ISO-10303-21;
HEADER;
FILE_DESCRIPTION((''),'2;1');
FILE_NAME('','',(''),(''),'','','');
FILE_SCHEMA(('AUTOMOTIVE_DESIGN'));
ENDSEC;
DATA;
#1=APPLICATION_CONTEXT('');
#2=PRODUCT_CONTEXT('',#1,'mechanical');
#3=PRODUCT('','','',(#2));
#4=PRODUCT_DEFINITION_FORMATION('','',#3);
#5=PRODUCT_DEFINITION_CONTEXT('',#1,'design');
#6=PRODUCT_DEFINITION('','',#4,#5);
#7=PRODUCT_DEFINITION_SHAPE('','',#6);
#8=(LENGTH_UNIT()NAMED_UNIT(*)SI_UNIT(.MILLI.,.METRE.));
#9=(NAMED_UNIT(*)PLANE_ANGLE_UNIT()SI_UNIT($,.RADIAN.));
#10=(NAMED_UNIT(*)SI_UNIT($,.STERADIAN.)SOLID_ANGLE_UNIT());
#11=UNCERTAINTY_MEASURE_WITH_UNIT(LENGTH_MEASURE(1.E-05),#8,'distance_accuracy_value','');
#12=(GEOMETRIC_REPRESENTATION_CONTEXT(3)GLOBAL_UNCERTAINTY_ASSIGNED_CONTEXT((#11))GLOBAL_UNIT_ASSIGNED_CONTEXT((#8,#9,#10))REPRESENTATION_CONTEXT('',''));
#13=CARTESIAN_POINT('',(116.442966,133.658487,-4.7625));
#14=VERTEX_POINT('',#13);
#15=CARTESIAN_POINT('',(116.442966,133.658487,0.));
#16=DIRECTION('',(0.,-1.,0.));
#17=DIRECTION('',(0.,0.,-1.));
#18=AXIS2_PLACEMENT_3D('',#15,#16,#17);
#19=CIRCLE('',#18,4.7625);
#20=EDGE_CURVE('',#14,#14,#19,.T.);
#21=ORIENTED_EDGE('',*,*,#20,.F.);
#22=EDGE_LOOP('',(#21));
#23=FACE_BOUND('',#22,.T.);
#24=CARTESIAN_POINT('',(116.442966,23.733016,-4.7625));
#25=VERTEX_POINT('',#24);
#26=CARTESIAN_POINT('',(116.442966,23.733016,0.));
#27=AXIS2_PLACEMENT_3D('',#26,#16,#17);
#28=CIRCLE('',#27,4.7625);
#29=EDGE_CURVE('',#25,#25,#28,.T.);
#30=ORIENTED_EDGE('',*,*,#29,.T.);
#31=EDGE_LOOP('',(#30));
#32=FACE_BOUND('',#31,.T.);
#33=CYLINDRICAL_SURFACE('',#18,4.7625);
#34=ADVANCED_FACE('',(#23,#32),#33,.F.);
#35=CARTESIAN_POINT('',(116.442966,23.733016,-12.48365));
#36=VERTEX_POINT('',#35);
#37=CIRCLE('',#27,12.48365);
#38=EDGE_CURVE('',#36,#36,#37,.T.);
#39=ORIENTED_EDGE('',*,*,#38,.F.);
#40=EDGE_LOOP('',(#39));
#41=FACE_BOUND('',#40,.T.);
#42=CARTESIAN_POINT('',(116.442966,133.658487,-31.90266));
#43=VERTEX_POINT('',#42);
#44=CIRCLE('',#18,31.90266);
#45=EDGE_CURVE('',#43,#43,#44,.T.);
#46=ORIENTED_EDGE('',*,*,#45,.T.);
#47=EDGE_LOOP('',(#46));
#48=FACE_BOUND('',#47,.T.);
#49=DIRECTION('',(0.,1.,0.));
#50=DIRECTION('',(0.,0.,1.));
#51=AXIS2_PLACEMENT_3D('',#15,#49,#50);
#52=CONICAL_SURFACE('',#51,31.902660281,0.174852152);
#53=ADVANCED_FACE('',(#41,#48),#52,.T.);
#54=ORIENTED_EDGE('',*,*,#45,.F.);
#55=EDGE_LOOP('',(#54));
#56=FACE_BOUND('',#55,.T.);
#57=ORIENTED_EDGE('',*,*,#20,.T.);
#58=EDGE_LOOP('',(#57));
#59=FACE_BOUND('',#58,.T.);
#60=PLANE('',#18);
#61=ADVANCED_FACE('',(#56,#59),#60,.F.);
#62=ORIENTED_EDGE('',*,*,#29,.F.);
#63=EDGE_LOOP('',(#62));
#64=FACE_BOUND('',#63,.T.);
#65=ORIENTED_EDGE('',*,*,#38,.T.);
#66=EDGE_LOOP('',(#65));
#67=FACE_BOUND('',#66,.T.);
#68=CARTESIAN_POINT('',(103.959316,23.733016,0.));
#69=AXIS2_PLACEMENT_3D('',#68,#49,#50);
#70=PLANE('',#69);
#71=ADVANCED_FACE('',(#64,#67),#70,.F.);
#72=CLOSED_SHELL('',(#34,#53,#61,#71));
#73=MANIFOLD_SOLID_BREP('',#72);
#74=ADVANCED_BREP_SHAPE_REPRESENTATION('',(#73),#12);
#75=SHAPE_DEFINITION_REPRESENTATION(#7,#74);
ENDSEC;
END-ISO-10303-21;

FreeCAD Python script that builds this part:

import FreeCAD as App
import Part
import Sketcher
from FreeCAD import Vector
Q = App.Units.Quantity

doc = App.newDocument("Part")
body = doc.addObject("PartDesign::Body", "Body")

# Sketch on XY plane
sketch1 = doc.addObject("Sketcher::SketchObject", "Sketch")
body.addObject(sketch1)
sketch1.AttachmentSupport = (doc.XY_Plane, [""])
sketch1.MapMode = "FlatFace"
sketch1.addGeometry(Part.LineSegment(Vector(116.442966, 23.733016, 0), Vector(116.442966, 133.658487, 0)), False)
sketch1.addGeometry(Part.LineSegment(Vector(116.442966, 133.658487, 0), Vector(84.540305, 133.658487, 0)), False)
sketch1.addGeometry(Part.LineSegment(Vector(84.540305, 133.658487, 0), Vector(103.959316, 23.733016, 0)), False)
sketch1.addGeometry(Part.LineSegment(Vector(103.959316, 23.733016, 0), Vector(116.442966, 23.733016, 0)), False)
sketch1.addGeometry(Part.LineSegment(Vector(116.442966, 23.733016, 0), Vector(116.442966, 133.658487, 0)), True)  # axis
sketch1.addConstraint(Sketcher.Constraint("Coincident", 0, 2, 1, 1))
sketch1.addConstraint(Sketcher.Constraint("Coincident", 1, 2, 2, 1))
sketch1.addConstraint(Sketcher.Constraint("Coincident", 2, 2, 3, 1))
sketch1.addConstraint(Sketcher.Constraint("Coincident", 3, 2, 0, 1))
sketch1.addConstraint(Sketcher.Constraint("Vertical", 0))
sketch1.addConstraint(Sketcher.Constraint("Horizontal", 1))
sketch1.addConstraint(Sketcher.Constraint("Horizontal", 3))
sketch1.addConstraint(Sketcher.Constraint("Vertical", 4))
sketch1.addConstraint(Sketcher.Constraint("Coincident", 4, 1, 3, 2))
sketch1.addConstraint(Sketcher.Constraint("Horizontal", 1, 2, 4, 2))
sketch1.addConstraint(Sketcher.Constraint("DistanceX", 1, 2, 1, 1, 31.90266))
sketch1.addConstraint(Sketcher.Constraint("DistanceX", 3, 1, 3, 2, 12.48365))
sketch1.addConstraint(Sketcher.Constraint("DistanceY", 0, 1, 0, 2, 109.925471))
sketch1.addConstraint(Sketcher.Constraint("DistanceX", -1, 1, 0, 2, 116.442966))
sketch1.addConstraint(Sketcher.Constraint("DistanceY", -1, 1, 0, 2, 133.658487))
revolution = doc.addObject("PartDesign::Revolution", "Revolution")
body.addObject(revolution)
revolution.Profile = sketch1
revolution.ReferenceAxis = (sketch1, ["Axis0"])
revolution.Angle = 360

# Sketch on XZ plane
sketch2 = doc.addObject("Sketcher::SketchObject", "Sketch001")
body.addObject(sketch2)
sketch2.AttachmentSupport = (doc.XZ_Plane, [""])
sketch2.MapMode = "FlatFace"
sketch2.AttachmentOffset = App.Placement(Vector(0, 0, -23.733016), App.Rotation())
sketch2.addGeometry(Part.Circle(Vector(116.442966, 0, 0), Vector(0, 0, 1), 4.7625), False)
sketch2.addConstraint(Sketcher.Constraint("PointOnObject", 0, 3, -1))
sketch2.addConstraint(Sketcher.Constraint("Diameter", 0, Q("0.375 in")))
sketch2.addConstraint(Sketcher.Constraint("DistanceX", -1, 1, 0, 3, 116.442966))
pocket1 = doc.addObject("PartDesign::Pocket", "Pocket")
body.addObject(pocket1)
pocket1.Profile = sketch2
pocket1.Type = "ThroughAll"

doc.recompute()
